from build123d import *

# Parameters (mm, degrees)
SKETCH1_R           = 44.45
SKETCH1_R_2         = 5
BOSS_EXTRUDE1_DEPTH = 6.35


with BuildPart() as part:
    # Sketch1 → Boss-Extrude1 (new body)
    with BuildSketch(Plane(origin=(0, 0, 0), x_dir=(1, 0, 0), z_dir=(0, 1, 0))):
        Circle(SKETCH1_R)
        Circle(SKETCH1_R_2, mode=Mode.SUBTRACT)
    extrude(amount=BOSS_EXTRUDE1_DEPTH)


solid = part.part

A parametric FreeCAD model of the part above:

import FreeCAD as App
import Part
import Sketcher

V = App.Vector
Q = App.Units.Quantity

doc = App.newDocument("Part")
body = doc.addObject("PartDesign::Body", "Body")

# Sketch on XZ plane
sketch1 = body.newObject("Sketcher::SketchObject", "Sketch")
sketch1.AttachmentSupport = (doc.getObject("XZ_Plane"), [""])
sketch1.MapMode = "FlatFace"
sketch1.addGeometry(Part.Circle(V(0, 0, 0), V(0, 0, 1), 44), False)
sketch1.addGeometry(Part.Circle(V(0, 0, 0), V(0, 0, 1), 5), False)
sketch1.addConstraint(Sketcher.Constraint("Coincident", 0, 3, -1, 1))
sketch1.addConstraint(Sketcher.Constraint("Coincident", 1, 3, -1, 1))
sketch1.addConstraint(Sketcher.Constraint("Diameter", 0, Q("3.5 in")))
sketch1.addConstraint(Sketcher.Constraint("Diameter", 1, 10.0))
pad1 = body.newObject("PartDesign::Pad", "Pad")
pad1.Profile = sketch1
pad1.Length = Q("0.25 in")
pad1.Reversed = True

doc.recompute()
